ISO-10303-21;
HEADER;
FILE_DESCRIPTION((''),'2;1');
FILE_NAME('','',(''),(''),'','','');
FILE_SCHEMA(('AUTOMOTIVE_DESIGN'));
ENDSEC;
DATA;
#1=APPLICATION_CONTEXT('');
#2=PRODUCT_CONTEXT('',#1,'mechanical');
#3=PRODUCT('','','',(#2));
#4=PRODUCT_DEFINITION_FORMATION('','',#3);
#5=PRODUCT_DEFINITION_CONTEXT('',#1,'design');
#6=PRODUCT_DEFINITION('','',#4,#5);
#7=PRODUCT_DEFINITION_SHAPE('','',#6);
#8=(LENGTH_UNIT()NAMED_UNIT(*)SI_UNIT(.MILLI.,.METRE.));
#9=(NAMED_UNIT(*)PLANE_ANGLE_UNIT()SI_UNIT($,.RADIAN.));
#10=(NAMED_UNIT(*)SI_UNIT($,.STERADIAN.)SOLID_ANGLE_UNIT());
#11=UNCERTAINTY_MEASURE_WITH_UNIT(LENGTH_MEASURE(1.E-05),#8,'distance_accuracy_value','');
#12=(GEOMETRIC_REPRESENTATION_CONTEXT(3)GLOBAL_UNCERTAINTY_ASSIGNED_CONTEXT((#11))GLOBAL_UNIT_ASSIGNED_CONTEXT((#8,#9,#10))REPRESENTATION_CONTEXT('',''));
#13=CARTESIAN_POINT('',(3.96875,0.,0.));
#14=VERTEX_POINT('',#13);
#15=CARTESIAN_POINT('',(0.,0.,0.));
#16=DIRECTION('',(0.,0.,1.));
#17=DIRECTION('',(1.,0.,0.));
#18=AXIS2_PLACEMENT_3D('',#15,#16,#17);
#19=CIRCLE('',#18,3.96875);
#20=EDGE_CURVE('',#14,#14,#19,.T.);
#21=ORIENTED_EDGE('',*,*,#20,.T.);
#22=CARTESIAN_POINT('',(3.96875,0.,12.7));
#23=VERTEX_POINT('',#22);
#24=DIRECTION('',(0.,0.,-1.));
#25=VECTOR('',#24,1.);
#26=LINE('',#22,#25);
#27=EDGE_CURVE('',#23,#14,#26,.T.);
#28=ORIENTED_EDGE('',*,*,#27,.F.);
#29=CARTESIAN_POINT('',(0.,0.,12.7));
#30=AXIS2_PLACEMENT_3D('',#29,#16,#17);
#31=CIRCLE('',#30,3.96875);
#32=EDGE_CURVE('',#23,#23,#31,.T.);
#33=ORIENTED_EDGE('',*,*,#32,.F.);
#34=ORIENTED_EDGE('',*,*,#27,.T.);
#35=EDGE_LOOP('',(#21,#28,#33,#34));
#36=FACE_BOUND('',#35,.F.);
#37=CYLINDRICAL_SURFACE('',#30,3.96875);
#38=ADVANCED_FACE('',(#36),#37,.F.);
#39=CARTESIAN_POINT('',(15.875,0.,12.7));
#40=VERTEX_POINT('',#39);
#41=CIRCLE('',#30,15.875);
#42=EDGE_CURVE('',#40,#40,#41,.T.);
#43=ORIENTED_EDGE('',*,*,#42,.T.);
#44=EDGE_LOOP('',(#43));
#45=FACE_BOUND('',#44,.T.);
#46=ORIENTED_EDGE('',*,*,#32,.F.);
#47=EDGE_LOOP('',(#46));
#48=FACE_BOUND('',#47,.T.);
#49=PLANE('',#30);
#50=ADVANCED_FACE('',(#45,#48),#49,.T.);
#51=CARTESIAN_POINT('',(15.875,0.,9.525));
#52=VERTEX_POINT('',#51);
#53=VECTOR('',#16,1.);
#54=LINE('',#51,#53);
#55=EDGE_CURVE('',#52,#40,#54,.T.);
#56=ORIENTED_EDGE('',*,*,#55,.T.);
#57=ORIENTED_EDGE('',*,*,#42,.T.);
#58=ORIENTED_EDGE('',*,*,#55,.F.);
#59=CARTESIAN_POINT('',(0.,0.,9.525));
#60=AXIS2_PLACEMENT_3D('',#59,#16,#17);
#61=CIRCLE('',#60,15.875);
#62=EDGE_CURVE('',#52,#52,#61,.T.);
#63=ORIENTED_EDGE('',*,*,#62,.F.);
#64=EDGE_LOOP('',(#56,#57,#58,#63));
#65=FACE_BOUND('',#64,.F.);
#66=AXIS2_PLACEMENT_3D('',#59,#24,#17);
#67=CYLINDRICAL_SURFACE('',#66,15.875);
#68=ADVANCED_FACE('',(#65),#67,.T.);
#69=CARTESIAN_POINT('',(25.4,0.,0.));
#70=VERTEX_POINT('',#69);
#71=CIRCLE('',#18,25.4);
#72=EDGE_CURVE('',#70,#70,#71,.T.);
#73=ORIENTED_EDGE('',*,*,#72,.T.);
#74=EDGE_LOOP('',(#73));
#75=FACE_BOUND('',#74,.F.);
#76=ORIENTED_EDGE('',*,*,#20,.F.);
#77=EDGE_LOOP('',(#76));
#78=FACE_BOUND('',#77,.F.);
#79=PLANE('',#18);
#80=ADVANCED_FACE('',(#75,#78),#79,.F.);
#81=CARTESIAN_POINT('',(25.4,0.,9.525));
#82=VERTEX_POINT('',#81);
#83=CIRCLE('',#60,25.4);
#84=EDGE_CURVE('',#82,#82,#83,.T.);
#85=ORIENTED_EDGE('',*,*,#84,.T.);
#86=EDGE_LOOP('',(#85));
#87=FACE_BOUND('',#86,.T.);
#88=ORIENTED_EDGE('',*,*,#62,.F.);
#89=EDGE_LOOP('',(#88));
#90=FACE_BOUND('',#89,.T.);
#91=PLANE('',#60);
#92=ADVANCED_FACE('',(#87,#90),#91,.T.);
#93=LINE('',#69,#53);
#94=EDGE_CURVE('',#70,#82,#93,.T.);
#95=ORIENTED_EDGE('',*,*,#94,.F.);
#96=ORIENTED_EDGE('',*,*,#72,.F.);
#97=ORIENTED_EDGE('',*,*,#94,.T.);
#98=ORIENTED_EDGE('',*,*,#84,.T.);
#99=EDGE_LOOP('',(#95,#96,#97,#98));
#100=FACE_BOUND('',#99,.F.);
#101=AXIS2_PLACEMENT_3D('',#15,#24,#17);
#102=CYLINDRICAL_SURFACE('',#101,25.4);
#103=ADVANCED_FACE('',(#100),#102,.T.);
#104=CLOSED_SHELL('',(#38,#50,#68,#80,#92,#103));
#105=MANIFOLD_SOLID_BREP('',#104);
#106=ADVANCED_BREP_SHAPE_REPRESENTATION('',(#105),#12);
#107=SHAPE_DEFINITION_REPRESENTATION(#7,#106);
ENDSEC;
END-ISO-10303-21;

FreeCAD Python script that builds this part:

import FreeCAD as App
import Part
import Sketcher
from FreeCAD import Vector
Q = App.Units.Quantity

doc = App.newDocument("Part")
body = doc.addObject("PartDesign::Body", "Body")

# Sketch on XY plane
sketch1 = body.newObject("Sketcher::SketchObject", "Sketch")
sketch1.AttachmentSupport = (doc.getObject("XY_Plane"), [""])
sketch1.MapMode = "FlatFace"
sketch1.addGeometry(Part.Circle(Vector(0, 0, 0), Vector(0, 0, 1), 25), False)
sketch1.addConstraint([
    Sketcher.Constraint("Coincident", 0, 3, -1, 1),
    Sketcher.Constraint("Diameter", 0, Q("2 in")),
])
pad1 = body.newObject("PartDesign::Pad", "Pad")
pad1.Profile = sketch1
pad1.Length = Q("0.375 in")

# Sketch on XY plane
sketch2 = body.newObject("Sketcher::SketchObject", "Sketch001")
sketch2.AttachmentSupport = (doc.getObject("XY_Plane"), [""])
sketch2.MapMode = "FlatFace"
sketch2.AttachmentOffset = App.Placement(Vector(0, 0, 0.375 * 25.4), App.Rotation())
sketch2.addGeometry(Part.Circle(Vector(0, 0, 0), Vector(0, 0, 1), 16), False)
sketch2.addConstraint([
    Sketcher.Constraint("Coincident", 0, 3, -1, 1),
    Sketcher.Constraint("Diameter", 0, Q("1.25 in")),
])
pad2 = body.newObject("PartDesign::Pad", "Pad001")
pad2.Profile = sketch2
pad2.Length = Q("0.125 in")

# Sketch on XY plane
sketch3 = body.newObject("Sketcher::SketchObject", "Sketch002")
sketch3.AttachmentSupport = (doc.getObject("XY_Plane"), [""])
sketch3.MapMode = "FlatFace"
sketch3.AttachmentOffset = App.Placement(Vector(0, 0, 0.5 * 25.4), App.Rotation())
sketch3.addGeometry(Part.Circle(Vector(0, 0, 0), Vector(0, 0, 1), 4), False)
sketch3.addConstraint([
    Sketcher.Constraint("Coincident", 0, 3, -1, 1),
    Sketcher.Constraint("Diameter", 0, Q("0.3125 in")),
])
pocket1 = body.newObject("PartDesign::Pocket", "Pocket")
pocket1.Profile = sketch3
pocket1.Type = "ThroughAll"

doc.recompute()
